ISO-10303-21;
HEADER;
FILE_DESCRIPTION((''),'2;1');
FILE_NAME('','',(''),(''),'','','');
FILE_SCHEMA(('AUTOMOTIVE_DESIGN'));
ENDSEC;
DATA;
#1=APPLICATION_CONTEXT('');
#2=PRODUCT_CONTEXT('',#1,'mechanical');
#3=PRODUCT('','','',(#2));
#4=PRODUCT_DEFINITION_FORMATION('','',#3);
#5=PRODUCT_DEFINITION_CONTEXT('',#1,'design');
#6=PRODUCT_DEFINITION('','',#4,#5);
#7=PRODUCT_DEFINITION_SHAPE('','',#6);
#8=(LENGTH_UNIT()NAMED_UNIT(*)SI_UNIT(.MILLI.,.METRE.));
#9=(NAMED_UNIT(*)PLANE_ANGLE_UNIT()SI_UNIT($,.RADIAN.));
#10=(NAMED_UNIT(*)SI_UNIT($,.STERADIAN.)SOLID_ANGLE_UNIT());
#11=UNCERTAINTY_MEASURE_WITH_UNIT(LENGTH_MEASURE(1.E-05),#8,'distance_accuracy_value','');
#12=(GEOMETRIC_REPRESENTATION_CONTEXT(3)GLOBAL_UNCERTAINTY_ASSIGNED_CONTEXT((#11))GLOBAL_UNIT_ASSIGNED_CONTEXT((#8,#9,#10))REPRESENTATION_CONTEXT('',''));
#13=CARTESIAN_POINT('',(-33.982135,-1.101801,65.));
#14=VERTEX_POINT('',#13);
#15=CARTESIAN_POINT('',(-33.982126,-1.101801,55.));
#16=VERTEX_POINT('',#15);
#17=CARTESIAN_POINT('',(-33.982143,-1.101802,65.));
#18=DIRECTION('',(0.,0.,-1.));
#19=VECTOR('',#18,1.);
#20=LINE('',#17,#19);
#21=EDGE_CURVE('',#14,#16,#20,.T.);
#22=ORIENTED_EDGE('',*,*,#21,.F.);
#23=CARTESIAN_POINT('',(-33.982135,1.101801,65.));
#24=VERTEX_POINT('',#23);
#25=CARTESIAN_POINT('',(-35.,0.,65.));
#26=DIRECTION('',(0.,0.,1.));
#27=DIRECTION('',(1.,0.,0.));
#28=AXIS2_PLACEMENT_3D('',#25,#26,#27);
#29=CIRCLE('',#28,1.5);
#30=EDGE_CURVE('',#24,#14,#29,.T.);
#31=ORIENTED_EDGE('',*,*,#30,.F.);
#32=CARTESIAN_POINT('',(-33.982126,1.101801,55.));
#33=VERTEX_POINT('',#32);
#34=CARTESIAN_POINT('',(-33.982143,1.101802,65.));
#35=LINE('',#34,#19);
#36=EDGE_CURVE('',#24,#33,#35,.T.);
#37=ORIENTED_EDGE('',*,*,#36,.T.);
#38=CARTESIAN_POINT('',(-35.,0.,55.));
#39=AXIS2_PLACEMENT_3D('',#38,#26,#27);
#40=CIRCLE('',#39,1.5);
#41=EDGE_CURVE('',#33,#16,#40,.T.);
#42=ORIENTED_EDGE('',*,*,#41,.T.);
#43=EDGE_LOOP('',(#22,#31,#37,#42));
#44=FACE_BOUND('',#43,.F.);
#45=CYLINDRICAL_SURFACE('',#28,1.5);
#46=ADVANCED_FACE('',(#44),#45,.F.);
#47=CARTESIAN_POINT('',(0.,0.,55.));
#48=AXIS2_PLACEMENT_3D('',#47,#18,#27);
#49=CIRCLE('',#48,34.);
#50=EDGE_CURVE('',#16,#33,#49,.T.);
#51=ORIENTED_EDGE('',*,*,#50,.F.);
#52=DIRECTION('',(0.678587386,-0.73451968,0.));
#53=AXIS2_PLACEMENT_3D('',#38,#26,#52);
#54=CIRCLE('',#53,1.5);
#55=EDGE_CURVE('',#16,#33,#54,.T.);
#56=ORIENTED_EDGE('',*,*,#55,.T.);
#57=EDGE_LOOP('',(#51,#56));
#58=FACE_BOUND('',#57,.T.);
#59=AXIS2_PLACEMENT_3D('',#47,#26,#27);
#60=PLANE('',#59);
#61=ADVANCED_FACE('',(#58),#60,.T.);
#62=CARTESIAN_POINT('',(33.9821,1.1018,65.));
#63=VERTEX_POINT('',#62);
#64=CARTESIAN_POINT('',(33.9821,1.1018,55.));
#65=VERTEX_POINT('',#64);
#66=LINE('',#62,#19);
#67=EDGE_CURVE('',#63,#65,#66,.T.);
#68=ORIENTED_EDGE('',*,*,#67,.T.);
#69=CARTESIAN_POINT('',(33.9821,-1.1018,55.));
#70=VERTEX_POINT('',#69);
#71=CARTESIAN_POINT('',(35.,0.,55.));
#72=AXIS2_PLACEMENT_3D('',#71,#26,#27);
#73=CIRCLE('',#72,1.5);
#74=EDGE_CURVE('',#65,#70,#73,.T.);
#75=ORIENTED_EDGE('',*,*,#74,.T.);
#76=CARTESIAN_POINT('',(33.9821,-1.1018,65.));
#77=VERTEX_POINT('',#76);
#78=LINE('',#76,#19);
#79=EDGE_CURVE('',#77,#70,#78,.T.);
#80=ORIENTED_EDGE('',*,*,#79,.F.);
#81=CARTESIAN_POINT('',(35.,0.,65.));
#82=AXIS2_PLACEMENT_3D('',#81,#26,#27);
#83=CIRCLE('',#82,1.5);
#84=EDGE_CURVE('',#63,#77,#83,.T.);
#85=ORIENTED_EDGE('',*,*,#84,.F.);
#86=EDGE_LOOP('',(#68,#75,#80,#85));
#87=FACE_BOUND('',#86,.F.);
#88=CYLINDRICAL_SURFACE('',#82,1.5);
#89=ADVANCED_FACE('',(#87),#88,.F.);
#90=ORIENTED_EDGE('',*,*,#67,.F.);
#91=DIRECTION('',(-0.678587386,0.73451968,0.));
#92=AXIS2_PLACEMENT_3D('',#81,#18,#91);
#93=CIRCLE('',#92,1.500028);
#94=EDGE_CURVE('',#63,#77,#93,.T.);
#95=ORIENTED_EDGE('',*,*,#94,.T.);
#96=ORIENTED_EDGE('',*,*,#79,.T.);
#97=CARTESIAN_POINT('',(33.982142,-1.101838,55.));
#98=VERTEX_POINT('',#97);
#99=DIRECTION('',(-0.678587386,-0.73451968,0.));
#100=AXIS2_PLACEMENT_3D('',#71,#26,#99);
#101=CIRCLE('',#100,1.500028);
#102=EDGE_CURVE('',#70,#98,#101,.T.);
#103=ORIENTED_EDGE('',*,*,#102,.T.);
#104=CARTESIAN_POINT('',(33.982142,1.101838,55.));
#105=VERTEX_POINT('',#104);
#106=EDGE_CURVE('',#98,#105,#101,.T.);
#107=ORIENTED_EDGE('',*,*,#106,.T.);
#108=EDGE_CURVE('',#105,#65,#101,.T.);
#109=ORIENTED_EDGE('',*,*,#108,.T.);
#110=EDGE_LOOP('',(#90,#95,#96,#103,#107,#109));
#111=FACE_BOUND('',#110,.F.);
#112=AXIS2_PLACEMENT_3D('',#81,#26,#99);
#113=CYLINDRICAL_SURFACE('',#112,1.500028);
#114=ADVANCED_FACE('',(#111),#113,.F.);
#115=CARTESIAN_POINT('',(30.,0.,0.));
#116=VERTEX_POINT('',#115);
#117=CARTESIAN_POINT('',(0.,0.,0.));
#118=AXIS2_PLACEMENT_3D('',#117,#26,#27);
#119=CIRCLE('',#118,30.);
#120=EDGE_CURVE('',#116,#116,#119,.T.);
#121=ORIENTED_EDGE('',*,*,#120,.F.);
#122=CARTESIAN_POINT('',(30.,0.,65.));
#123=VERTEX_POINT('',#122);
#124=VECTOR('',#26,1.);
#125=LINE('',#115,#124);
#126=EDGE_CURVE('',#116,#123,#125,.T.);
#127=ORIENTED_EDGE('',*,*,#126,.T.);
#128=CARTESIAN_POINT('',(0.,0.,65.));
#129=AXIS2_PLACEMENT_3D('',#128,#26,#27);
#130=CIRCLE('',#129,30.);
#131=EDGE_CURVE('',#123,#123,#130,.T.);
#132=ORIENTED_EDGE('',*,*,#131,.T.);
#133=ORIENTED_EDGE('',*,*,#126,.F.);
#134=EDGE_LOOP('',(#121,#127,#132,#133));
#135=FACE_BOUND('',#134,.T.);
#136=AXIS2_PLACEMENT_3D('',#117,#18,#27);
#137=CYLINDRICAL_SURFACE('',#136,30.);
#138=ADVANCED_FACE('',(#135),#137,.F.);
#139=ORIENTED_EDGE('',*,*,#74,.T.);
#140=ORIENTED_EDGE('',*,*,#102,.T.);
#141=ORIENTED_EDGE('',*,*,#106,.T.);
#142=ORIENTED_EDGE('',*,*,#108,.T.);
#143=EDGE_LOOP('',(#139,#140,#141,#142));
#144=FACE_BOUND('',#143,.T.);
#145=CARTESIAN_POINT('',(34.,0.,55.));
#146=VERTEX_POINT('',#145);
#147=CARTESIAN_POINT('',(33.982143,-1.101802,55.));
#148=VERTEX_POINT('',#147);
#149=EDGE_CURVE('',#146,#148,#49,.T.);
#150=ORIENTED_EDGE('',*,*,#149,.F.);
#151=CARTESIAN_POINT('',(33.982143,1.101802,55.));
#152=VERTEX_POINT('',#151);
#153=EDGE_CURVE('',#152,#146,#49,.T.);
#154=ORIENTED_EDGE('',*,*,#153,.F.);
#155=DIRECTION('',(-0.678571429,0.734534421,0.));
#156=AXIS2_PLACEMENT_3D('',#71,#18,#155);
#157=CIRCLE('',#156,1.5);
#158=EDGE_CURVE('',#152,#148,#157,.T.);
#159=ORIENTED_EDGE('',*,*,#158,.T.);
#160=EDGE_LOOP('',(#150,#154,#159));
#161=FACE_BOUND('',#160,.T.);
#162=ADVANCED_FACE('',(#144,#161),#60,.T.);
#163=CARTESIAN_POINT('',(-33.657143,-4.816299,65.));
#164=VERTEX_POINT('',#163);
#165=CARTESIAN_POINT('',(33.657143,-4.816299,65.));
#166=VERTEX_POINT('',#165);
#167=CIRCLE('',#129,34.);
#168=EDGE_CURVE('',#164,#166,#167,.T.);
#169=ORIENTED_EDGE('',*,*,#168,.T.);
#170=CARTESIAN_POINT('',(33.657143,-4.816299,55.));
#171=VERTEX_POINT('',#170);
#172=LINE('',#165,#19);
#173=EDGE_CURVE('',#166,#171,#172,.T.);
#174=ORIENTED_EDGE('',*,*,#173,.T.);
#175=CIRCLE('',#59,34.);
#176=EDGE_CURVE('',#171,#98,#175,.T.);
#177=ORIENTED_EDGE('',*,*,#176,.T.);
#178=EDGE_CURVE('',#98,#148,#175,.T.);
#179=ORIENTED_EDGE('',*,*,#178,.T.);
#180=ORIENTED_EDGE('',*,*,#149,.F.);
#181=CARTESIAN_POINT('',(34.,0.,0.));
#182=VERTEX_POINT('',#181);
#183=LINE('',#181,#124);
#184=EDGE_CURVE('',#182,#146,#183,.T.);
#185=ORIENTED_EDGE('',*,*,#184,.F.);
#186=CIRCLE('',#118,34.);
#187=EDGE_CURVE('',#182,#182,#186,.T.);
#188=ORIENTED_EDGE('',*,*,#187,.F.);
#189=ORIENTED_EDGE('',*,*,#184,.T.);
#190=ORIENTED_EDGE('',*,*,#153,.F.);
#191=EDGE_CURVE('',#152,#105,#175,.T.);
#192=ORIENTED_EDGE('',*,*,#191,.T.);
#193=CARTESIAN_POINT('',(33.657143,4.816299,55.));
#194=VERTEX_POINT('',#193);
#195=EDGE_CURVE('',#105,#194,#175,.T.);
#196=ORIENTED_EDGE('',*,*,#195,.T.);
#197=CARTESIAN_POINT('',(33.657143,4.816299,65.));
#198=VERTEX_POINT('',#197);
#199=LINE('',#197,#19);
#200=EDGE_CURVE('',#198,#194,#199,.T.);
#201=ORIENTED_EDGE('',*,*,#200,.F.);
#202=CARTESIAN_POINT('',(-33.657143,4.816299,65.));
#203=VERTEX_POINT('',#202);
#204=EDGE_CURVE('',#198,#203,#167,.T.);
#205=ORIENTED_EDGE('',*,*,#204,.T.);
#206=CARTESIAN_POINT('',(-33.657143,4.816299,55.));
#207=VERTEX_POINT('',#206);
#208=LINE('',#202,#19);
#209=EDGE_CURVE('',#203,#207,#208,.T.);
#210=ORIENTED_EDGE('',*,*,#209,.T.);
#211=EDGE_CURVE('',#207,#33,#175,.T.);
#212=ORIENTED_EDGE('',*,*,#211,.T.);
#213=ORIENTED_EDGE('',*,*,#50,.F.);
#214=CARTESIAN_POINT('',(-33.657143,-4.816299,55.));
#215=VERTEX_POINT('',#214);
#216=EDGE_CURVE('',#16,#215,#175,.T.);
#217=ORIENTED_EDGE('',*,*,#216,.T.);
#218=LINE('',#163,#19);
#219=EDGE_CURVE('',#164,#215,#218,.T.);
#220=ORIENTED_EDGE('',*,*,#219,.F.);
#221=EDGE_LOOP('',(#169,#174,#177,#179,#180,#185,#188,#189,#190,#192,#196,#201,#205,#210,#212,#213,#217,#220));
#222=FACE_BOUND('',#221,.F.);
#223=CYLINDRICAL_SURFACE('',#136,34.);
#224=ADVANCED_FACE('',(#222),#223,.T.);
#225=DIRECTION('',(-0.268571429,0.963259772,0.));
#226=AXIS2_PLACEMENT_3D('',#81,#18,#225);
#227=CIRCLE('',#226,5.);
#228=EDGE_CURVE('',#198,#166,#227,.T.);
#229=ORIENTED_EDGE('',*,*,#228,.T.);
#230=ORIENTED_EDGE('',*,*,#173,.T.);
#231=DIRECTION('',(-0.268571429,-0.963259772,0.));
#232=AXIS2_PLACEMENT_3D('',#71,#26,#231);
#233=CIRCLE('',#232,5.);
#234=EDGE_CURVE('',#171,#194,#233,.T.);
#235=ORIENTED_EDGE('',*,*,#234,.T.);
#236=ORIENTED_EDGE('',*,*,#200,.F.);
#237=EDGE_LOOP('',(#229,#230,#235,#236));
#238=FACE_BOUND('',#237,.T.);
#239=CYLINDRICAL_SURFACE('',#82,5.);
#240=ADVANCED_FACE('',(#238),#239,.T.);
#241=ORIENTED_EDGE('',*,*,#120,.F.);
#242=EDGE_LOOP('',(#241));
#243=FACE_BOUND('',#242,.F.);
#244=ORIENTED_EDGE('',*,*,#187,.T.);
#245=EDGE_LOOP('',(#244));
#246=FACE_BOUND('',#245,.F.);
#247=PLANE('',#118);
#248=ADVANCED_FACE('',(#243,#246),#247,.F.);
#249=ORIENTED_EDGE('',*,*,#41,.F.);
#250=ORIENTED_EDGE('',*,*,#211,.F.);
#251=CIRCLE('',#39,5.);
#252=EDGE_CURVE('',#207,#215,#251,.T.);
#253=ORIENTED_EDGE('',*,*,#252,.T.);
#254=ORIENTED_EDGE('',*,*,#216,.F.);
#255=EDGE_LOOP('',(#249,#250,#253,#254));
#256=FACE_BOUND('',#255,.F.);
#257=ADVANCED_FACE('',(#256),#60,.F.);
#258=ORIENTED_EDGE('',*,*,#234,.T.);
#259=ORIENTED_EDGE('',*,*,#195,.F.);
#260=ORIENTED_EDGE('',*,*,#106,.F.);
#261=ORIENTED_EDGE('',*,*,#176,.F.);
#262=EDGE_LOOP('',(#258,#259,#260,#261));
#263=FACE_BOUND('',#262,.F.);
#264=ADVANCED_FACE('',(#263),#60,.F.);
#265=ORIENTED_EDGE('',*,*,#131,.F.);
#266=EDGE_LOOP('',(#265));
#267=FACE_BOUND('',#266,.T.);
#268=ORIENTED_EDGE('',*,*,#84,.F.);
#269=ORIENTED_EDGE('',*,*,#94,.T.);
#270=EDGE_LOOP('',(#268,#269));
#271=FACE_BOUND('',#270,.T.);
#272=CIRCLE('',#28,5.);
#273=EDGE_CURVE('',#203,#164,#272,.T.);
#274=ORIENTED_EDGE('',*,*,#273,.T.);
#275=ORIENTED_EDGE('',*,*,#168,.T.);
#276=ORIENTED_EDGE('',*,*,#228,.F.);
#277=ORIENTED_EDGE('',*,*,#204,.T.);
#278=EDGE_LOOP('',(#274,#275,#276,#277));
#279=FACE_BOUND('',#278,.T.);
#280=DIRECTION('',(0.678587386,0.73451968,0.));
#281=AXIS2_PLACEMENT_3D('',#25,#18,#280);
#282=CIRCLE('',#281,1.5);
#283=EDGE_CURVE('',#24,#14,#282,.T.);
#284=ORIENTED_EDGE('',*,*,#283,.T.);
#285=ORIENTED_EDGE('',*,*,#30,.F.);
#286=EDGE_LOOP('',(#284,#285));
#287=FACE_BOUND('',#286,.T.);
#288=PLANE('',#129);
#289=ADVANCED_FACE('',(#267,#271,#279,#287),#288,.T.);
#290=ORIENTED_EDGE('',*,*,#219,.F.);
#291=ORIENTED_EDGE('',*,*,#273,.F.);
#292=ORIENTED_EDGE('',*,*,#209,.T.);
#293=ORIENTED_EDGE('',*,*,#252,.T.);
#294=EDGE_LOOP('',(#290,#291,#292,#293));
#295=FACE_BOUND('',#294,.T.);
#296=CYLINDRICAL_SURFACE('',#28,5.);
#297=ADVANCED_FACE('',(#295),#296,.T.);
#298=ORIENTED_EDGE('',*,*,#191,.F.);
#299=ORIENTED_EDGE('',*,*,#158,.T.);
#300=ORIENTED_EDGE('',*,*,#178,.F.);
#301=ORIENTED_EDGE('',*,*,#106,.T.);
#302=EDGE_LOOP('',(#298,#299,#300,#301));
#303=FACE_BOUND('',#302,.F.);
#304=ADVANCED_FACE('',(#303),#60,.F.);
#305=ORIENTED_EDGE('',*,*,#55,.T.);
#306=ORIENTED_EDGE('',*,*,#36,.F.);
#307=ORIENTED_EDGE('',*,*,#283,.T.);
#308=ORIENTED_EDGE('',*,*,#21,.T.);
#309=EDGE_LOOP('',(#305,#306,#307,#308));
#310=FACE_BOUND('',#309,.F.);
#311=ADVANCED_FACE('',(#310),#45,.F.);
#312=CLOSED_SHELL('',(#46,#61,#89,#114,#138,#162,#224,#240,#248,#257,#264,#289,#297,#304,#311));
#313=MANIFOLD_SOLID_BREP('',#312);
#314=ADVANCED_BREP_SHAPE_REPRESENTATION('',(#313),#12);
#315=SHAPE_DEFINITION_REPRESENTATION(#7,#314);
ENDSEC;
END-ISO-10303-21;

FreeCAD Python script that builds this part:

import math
import FreeCAD as App
import Part
import Sketcher
from FreeCAD import Vector
Q = App.Units.Quantity

doc = App.newDocument("Part")
body = doc.addObject("PartDesign::Body", "Body")

# Sketch on XY plane
sketch1 = doc.addObject("Sketcher::SketchObject", "Sketch")
body.addObject(sketch1)
sketch1.AttachmentSupport = (doc.XY_Plane, [""])
sketch1.MapMode = "FlatFace"
sketch1.addGeometry(Part.Circle(Vector(0, 0, 0), Vector(0, 0, 1), 34), False)
sketch1.addGeometry(Part.Circle(Vector(0, 0, 0), Vector(0, 0, 1), 30), False)
sketch1.addConstraint(Sketcher.Constraint("Coincident", 0, 3, -1, 1))
sketch1.addConstraint(Sketcher.Constraint("Coincident", 1, 3, -1, 1))
sketch1.addConstraint(Sketcher.Constraint("Diameter", 1, Q("60 mm")))
sketch1.addConstraint(Sketcher.Constraint("Diameter", 0, Q("68 mm")))
pad1 = doc.addObject("PartDesign::Pad", "Pad")
body.addObject(pad1)
pad1.Profile = sketch1
pad1.Length = 65

# Sketch on XY plane
sketch2 = doc.addObject("Sketcher::SketchObject", "Sketch001")
body.addObject(sketch2)
sketch2.AttachmentSupport = (doc.XY_Plane, [""])
sketch2.MapMode = "FlatFace"
sketch2.AttachmentOffset = App.Placement(Vector(0, 0, 65), App.Rotation())
sketch2.addGeometry(Part.ArcOfCircle(Part.Circle(Vector(35, 0, 0), Vector(0, 0, 1), 5), math.radians(-105.579276), math.radians(105.579276)), False)
sketch2.addGeometry(Part.ArcOfCircle(Part.Circle(Vector(0, 0, 0), Vector(0, 0, 1), 34), math.radians(1.857048), math.radians(8.143674)), False)
sketch2.addGeometry(Part.ArcOfCircle(Part.Circle(Vector(35, 0, 0), Vector(0, 0, 1), 1.5), math.radians(-132.73211), math.radians(132.73211)), False)
sketch2.addGeometry(Part.ArcOfCircle(Part.Circle(Vector(0, 0, 0), Vector(0, 0, 1), 34), math.radians(-8.143674), math.radians(-1.857048)), False)
sketch2.addGeometry(Part.ArcOfCircle(Part.Circle(Vector(0, 0, 0), Vector(0, 0, 1), 34), math.radians(171.856326), math.radians(178.142952)), False)
sketch2.addGeometry(Part.ArcOfCircle(Part.Circle(Vector(-35, 0, 0), Vector(0, 0, 1), 5), math.radians(74.420724), math.radians(285.579276)), False)
sketch2.addGeometry(Part.ArcOfCircle(Part.Circle(Vector(0, 0, 0), Vector(0, 0, 1), 34), math.radians(-178.142952), math.radians(-171.856326)), False)
sketch2.addGeometry(Part.ArcOfCircle(Part.Circle(Vector(-35, 0, 0), Vector(0, 0, 1), 1.5), math.radians(47.26789), math.radians(312.73211)), False)
sketch2.addConstraint(Sketcher.Constraint("Coincident", 0, 2, 1, 2))
sketch2.addConstraint(Sketcher.Constraint("Coincident", 1, 1, 2, 2))
sketch2.addConstraint(Sketcher.Constraint("Coincident", 2, 1, 3, 2))
sketch2.addConstraint(Sketcher.Constraint("Coincident", 3, 1, 0, 1))
sketch2.addConstraint(Sketcher.Constraint("Coincident", 4, 1, 5, 1))
sketch2.addConstraint(Sketcher.Constraint("Coincident", 5, 2, 6, 2))
sketch2.addConstraint(Sketcher.Constraint("Coincident", 6, 1, 7, 2))
sketch2.addConstraint(Sketcher.Constraint("Coincident", 7, 1, 4, 2))
sketch2.addConstraint(Sketcher.Constraint("Coincident", 1, 3, -1, 1))
sketch2.addConstraint(Sketcher.Constraint("Coincident", 3, 3, -1, 1))
sketch2.addConstraint(Sketcher.Constraint("Coincident", 4, 3, -1, 1))
sketch2.addConstraint(Sketcher.Constraint("Coincident", 6, 3, -1, 1))
sketch2.addConstraint(Sketcher.Constraint("Coincident", 2, 3, 0, 3))
sketch2.addConstraint(Sketcher.Constraint("Coincident", 7, 3, 5, 3))
sketch2.addConstraint(Sketcher.Constraint("Equal", 1, 3))
sketch2.addConstraint(Sketcher.Constraint("Equal", 3, 4))
sketch2.addConstraint(Sketcher.Constraint("Equal", 0, 5))
sketch2.addConstraint(Sketcher.Constraint("Equal", 4, 6))
sketch2.addConstraint(Sketcher.Constraint("Equal", 2, 7))
sketch2.addConstraint(Sketcher.Constraint("Symmetric", 0, 3, 5, 3, -1, 1))
sketch2.addConstraint(Sketcher.Constraint("PointOnObject", 0, 3, -1))
sketch2.addConstraint(Sketcher.Constraint("Radius", 0, Q("5 mm")))
sketch2.addConstraint(Sketcher.Constraint("Radius", 2, Q("1.5 mm")))
sketch2.addConstraint(Sketcher.Constraint("Radius", 1, Q("34 mm")))
sketch2.addConstraint(Sketcher.Constraint("DistanceX", 5, 3, 0, 3, Q("70 mm")))
pad2 = doc.addObject("PartDesign::Pad", "Pad001")
body.addObject(pad2)
pad2.Profile = sketch2
pad2.Length = 10
pad2.Reversed = True

# Sketch on XY plane
sketch3 = doc.addObject("Sketcher::SketchObject", "Sketch002")
body.addObject(sketch3)
sketch3.AttachmentSupport = (doc.XY_Plane, [""])
sketch3.MapMode = "FlatFace"
sketch3.AttachmentOffset = App.Placement(Vector(0, 0, 65), App.Rotation())
sketch3.addGeometry(Part.Circle(Vector(-35, 0, 0), Vector(0, 0, 1), 1.500028), False)
sketch3.addGeometry(Part.Circle(Vector(35, 0, 0), Vector(0, 0, 1), 1.500028), False)
sketch3.addConstraint(Sketcher.Constraint("Equal", 0, 1))
sketch3.addConstraint(Sketcher.Constraint("Symmetric", 0, 3, 1, 3, -1, 1))
sketch3.addConstraint(Sketcher.Constraint("PointOnObject", 0, 3, -1))
sketch3.addConstraint(Sketcher.Constraint("Diameter", 0, Q("3 mm")))
sketch3.addConstraint(Sketcher.Constraint("DistanceX", 0, 3, -1, 1, Q("35 mm")))
pocket1 = doc.addObject("PartDesign::Pocket", "Pocket")
body.addObject(pocket1)
pocket1.Profile = sketch3
pocket1.Length = 10

doc.recompute()
